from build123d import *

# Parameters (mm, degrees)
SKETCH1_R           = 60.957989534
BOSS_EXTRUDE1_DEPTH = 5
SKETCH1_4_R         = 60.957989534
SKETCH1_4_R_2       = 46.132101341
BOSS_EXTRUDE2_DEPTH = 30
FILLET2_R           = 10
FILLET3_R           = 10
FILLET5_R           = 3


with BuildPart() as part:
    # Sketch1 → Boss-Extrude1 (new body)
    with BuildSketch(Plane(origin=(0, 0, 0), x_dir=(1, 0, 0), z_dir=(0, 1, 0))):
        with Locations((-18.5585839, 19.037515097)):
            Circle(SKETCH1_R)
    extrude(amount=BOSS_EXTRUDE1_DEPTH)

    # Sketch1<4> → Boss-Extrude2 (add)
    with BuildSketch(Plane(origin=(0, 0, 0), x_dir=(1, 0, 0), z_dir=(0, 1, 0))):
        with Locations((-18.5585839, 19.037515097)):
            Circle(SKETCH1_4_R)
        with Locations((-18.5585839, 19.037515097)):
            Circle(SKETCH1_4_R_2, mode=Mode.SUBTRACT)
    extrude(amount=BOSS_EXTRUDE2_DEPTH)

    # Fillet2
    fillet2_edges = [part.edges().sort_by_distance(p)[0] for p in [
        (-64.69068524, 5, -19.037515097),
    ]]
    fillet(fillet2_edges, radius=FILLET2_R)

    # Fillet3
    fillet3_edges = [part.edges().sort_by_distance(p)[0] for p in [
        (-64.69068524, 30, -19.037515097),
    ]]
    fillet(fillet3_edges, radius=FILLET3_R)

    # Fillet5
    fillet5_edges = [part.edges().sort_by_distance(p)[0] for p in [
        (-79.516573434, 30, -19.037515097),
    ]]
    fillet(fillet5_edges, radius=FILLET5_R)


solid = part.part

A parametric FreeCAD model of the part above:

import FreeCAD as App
import Part
import Sketcher
from FreeCAD import Vector


def edges_at(feature, points):
    """Names of the edges that pass closest to the given points."""
    edges = feature.Shape.Edges
    near = lambda p: min(range(len(edges)), key=lambda i: edges[i].distToShape(Part.Vertex(*p))[0])
    return sorted({f"Edge{near(p) + 1}" for p in points})

doc = App.newDocument("Part")
body = doc.addObject("PartDesign::Body", "Body")

sketch1 = body.newObject("Sketcher::SketchObject", "Sketch")
sketch1.AttachmentSupport = (doc.getObject("XZ_Plane"), [""])
sketch1.MapMode = "FlatFace"
sketch1.addGeometry(Part.Circle(Vector(-18.558584, -19.037515, 0), Vector(0, 0, 1), 60.95799), False)
sketch1.addConstraint([
    Sketcher.Constraint("Diameter", 0, 121.915979),
    Sketcher.Constraint("DistanceX", 0, 3, -1, 1, 18.558584),
    Sketcher.Constraint("DistanceY", 0, 3, -1, 1, 19.037515),
])
pad1 = body.newObject("PartDesign::Pad", "Pad")
pad1.Profile = sketch1
pad1.Length = 5
pad1.Reversed = True

sketch2 = body.newObject("Sketcher::SketchObject", "Sketch001")
sketch2.AttachmentSupport = (doc.getObject("XZ_Plane"), [""])
sketch2.MapMode = "FlatFace"
sketch2.addGeometry([
    Part.Circle(Vector(-18.558584, -19.037515, 0), Vector(0, 0, 1), 60.95799),
    Part.Circle(Vector(-18.558584, -19.037515, 0), Vector(0, 0, 1), 46.132101),
], False)
sketch2.addConstraint([
    Sketcher.Constraint("Coincident", 1, 3, 0, 3),
    Sketcher.Constraint("Diameter", 0, 121.915979),
    Sketcher.Constraint("Diameter", 1, 92.264203),
    Sketcher.Constraint("DistanceX", 0, 3, -1, 1, 18.558584),
    Sketcher.Constraint("DistanceY", 0, 3, -1, 1, 19.037515),
])
pad2 = body.newObject("PartDesign::Pad", "Pad001")
pad2.Profile = sketch2
pad2.Length = 30
pad2.Reversed = True
doc.recompute()

fillet = body.newObject("PartDesign::Fillet", "Fillet")
fillet.Base = (pad2, edges_at(pad2, [(-64.691, 5, -19.038)]))
fillet.Radius = 10
doc.recompute()

fillet2 = body.newObject("PartDesign::Fillet", "Fillet001")
fillet2.Base = (fillet, edges_at(fillet, [(-64.691, 30, -19.038)]))
fillet2.Radius = 10
doc.recompute()

fillet3 = body.newObject("PartDesign::Fillet", "Fillet002")
fillet3.Base = (fillet2, edges_at(fillet2, [(-79.517, 30, -19.038)]))
fillet3.Radius = 3

doc.recompute()
